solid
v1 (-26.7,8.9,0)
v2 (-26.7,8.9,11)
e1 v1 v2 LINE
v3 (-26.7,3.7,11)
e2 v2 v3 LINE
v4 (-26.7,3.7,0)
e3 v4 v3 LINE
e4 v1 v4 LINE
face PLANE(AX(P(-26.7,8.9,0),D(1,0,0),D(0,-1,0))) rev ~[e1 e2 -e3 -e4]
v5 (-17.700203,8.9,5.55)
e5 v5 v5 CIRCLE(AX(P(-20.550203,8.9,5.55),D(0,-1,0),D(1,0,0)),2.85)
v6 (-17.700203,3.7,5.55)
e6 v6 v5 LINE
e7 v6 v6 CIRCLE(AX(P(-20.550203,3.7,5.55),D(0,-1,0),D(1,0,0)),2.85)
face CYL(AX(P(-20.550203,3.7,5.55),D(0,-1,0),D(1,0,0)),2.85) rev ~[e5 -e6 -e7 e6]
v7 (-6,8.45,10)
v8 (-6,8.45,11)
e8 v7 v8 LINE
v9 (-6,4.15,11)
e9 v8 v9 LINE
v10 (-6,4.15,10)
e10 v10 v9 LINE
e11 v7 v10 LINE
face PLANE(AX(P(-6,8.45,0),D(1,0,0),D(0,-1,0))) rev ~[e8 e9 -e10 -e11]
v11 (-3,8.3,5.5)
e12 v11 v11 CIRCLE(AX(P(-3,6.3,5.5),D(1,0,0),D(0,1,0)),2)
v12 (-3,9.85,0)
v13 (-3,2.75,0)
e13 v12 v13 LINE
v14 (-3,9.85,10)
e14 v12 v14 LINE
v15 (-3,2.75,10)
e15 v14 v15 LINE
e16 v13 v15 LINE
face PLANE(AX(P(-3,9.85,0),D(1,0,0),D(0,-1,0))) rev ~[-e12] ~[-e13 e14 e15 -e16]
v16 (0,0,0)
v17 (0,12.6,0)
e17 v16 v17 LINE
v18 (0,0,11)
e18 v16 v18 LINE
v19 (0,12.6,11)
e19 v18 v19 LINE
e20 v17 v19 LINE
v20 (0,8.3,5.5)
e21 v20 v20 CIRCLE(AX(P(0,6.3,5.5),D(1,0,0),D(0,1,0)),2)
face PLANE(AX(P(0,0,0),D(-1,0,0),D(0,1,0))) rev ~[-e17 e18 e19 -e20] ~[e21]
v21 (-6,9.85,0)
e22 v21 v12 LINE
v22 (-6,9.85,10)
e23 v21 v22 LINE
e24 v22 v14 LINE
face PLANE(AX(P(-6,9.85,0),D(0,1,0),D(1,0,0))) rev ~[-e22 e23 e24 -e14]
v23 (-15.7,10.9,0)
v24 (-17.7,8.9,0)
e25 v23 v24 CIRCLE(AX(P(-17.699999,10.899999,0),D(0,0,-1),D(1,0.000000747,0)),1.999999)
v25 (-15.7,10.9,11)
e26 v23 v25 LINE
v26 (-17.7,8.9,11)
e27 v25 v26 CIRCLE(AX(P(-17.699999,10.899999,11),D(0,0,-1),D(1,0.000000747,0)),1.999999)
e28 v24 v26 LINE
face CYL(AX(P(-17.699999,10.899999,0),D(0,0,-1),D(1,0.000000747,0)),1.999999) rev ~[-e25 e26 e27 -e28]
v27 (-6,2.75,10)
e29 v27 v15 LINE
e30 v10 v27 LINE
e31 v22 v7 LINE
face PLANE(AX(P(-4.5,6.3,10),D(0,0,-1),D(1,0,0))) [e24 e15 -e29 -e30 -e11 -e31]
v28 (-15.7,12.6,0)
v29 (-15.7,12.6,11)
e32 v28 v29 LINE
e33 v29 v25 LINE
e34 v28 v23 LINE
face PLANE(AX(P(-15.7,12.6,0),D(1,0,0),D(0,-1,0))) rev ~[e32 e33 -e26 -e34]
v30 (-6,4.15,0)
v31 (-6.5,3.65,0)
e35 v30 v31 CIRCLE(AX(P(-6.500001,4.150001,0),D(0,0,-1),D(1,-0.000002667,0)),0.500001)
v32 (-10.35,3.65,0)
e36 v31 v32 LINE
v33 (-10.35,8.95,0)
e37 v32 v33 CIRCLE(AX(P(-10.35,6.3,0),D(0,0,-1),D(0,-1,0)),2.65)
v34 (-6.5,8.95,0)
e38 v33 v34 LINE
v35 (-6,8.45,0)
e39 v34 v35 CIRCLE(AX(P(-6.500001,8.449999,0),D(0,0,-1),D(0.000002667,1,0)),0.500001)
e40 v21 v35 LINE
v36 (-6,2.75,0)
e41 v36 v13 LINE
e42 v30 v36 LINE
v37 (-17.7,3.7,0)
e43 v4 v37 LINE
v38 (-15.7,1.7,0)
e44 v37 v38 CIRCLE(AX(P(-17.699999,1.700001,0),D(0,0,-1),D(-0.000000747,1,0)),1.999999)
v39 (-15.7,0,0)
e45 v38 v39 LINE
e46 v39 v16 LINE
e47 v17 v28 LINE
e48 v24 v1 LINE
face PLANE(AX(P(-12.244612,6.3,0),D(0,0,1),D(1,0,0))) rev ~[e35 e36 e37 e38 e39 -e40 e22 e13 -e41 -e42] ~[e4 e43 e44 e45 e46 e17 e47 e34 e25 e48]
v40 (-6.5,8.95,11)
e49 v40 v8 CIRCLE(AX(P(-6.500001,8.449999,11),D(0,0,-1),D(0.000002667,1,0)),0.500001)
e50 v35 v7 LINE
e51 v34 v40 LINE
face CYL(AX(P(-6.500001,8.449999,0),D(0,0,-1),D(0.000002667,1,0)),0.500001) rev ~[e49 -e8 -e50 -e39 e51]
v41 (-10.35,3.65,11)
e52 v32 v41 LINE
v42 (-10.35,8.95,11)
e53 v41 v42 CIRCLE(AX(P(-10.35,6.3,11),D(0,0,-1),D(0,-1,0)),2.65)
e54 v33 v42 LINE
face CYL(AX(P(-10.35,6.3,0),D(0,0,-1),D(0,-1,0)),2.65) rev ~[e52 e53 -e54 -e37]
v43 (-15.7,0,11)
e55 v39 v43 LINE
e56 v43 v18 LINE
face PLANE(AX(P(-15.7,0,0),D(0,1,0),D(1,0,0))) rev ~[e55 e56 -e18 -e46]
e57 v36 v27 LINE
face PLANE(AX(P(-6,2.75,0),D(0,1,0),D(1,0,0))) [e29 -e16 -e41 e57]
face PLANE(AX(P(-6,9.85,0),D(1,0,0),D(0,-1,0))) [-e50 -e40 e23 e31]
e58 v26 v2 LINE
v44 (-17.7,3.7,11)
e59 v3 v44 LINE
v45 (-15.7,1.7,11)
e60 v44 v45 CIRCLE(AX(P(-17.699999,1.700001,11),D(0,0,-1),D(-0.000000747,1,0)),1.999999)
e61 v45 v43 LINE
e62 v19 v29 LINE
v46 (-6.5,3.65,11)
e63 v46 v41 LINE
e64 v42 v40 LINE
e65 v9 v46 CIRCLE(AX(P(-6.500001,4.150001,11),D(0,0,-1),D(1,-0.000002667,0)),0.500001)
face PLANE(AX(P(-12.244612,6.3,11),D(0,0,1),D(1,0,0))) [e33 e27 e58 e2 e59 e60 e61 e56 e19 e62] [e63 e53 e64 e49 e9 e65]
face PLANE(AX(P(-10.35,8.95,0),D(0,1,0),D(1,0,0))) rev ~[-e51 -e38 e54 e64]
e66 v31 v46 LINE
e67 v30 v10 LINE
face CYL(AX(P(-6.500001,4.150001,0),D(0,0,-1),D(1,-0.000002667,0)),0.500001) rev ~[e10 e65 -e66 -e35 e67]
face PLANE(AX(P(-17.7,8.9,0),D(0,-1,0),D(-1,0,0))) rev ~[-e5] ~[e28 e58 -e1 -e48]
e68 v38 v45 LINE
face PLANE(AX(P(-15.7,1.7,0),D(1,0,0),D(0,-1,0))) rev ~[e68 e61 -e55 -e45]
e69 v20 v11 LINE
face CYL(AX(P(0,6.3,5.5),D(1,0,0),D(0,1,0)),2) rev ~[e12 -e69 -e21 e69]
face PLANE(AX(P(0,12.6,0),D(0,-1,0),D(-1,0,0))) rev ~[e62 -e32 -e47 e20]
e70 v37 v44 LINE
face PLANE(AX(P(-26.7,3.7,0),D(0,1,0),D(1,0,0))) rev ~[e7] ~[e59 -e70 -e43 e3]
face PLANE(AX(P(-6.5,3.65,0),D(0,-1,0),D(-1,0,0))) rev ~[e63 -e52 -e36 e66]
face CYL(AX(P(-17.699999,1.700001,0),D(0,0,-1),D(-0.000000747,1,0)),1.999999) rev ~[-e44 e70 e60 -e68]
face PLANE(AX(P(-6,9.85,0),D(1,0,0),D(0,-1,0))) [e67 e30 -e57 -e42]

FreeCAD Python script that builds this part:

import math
import FreeCAD as App
import Part
import Sketcher

doc = App.newDocument("Part")
params = doc.addObject("Spreadsheet::Sheet", "Params")
for row, (alias, value) in enumerate([
    ("sketch1_radius", "1.999999 mm"),
    ("sketch1_radius2", "0.500001 mm"),
    ("sketch1_width", "9 mm"),
    ("sketch1_radius3", "2.65 mm"),
    ("sketch1_width2", "15.7 mm"),
    ("pad1_length", "11 mm"),
    ("sketch2_diameter", "5.7 mm"),
    ("pocket1_length", "25 mm"),
    ("sketch3_width", "3 mm"),
    ("sketch3_height", "7.1 mm"),
    ("pocket2_length", "10 mm"),
    ("sketch4_diameter", "4 mm"),
    ("pocket3_length", "3 mm"),
], start=1):
    params.set(f"A{row}", alias)
    params.set(f"B{row}", "=" + value)
    params.setAlias(f"B{row}", alias)

body = doc.addObject("PartDesign::Body", "Body")

# Sketch on XY plane
sketch1 = body.newObject("Sketcher::SketchObject", "Sketch")
sketch1.AttachmentSupport = (doc.getObject("XY_Plane"), [""])
sketch1.MapMode = "FlatFace"
sketch1.addGeometry([
    Part.LineSegment(App.Vector(-15.7, 1.7, 0), App.Vector(-15.7, 0, 0)),  # 0
    Part.LineSegment(App.Vector(-15.7, 0, 0), App.Vector(0, 0, 0)),  # 1
    Part.LineSegment(App.Vector(0, 0, 0), App.Vector(0, 12.6, 0)),  # 2
    Part.LineSegment(App.Vector(0, 12.6, 0), App.Vector(-15.7, 12.6, 0)),  # 3
    Part.LineSegment(App.Vector(-15.7, 12.6, 0), App.Vector(-15.7, 10.9, 0)),  # 4
    Part.ArcOfCircle(Part.Circle(App.Vector(-17.699999, 10.899999, 0), App.Vector(0, 0, 1), 1.999999), math.radians(-90.000043), math.radians(0.000043)),  # 5
    Part.LineSegment(App.Vector(-17.7, 8.9, 0), App.Vector(-26.7, 8.9, 0)),  # 6
    Part.LineSegment(App.Vector(-26.7, 8.9, 0), App.Vector(-26.7, 3.7, 0)),  # 7
    Part.LineSegment(App.Vector(-26.7, 3.7, 0), App.Vector(-17.7, 3.7, 0)),  # 8
    Part.ArcOfCircle(Part.Circle(App.Vector(-17.699999, 1.700001, 0), App.Vector(0, 0, 1), 1.999999), math.radians(-0.000043), math.radians(90.000043)),  # 9
    Part.LineSegment(App.Vector(-6, 8.45, 0), App.Vector(-6, 4.15, 0)),  # 10
    Part.ArcOfCircle(Part.Circle(App.Vector(-6.500001, 4.150001, 0), App.Vector(0, 0, 1), 0.500001), math.radians(-89.999847), math.radians(-0.000153)),  # 11
    Part.LineSegment(App.Vector(-6.5, 3.65, 0), App.Vector(-10.35, 3.65, 0)),  # 12
    Part.ArcOfCircle(Part.Circle(App.Vector(-10.35, 6.3, 0), App.Vector(0, 0, 1), 2.65), math.radians(90), math.radians(270)),  # 13
    Part.LineSegment(App.Vector(-10.35, 8.95, 0), App.Vector(-6.5, 8.95, 0)),  # 14
    Part.ArcOfCircle(Part.Circle(App.Vector(-6.500001, 8.449999, 0), App.Vector(0, 0, 1), 0.500001), math.radians(0.000153), math.radians(89.999847)),  # 15
], False)
sketch1.addConstraint([
    Sketcher.Constraint("Coincident", 0, 2, 1, 1),
    Sketcher.Constraint("Coincident", 1, 2, 2, 1),
    Sketcher.Constraint("Coincident", 2, 2, 3, 1),
    Sketcher.Constraint("Coincident", 3, 2, 4, 1),
    Sketcher.Constraint("Tangent", 4, 2, 5, 2),
    Sketcher.Constraint("Tangent", 5, 1, 6, 1),
    Sketcher.Constraint("Coincident", 6, 2, 7, 1),
    Sketcher.Constraint("Coincident", 7, 2, 8, 1),
    Sketcher.Constraint("Tangent", 8, 2, 9, 2),
    Sketcher.Constraint("Tangent", 9, 1, 0, 1),
    Sketcher.Constraint("Coincident", 10, 2, 11, 2),
    Sketcher.Constraint("Coincident", 11, 1, 12, 1),
    Sketcher.Constraint("Tangent", 12, 2, 13, 2),
    Sketcher.Constraint("Tangent", 13, 1, 14, 1),
    Sketcher.Constraint("Coincident", 14, 2, 15, 2),
    Sketcher.Constraint("Coincident", 15, 1, 10, 1),
    Sketcher.Constraint("Vertical", 0),
    Sketcher.Constraint("Horizontal", 1),
    Sketcher.Constraint("Vertical", 2),
    Sketcher.Constraint("Horizontal", 3),
    Sketcher.Constraint("Vertical", 4),
    Sketcher.Constraint("Horizontal", 6),
    Sketcher.Constraint("Vertical", 7),
    Sketcher.Constraint("Horizontal", 8),
    Sketcher.Constraint("Vertical", 10),
    Sketcher.Constraint("Horizontal", 12),
    Sketcher.Constraint("Horizontal", 14),
    Sketcher.Constraint("Coincident", 1, 2, -1, 1),
    Sketcher.Constraint("Equal", 5, 9),
    Sketcher.Constraint("Equal", 11, 15),
    Sketcher.Constraint("Horizontal", 11, 3, 10, 2),
    Sketcher.Constraint("Vertical", 5, 3, 9, 3),
    Sketcher.Constraint("Vertical", 15, 3, 11, 1),
    Sketcher.Constraint("Vertical", 11, 1, 14, 2),
    Sketcher.Constraint("Equal", 0, 4),
    Sketcher.Constraint("Radius", 5, 1.999999),
    Sketcher.Constraint("Radius", 11, 0.500001),
    Sketcher.Constraint("DistanceX", 6, 2, 6, 1, 9.0),
    Sketcher.Constraint("Radius", 13, 2.65),
    Sketcher.Constraint("DistanceX", 1, 1, 1, 2, 15.7),
    Sketcher.Constraint("DistanceY", 0, 2, 0, 1, 1.7),
    Sketcher.Constraint("DistanceY", 2, 1, 2, 2, 12.6),
    Sketcher.Constraint("DistanceY", 10, 2, 10, 1, 4.3),
    Sketcher.Constraint("DistanceX", 10, 2, -1, 1, 6.0),
    Sketcher.Constraint("DistanceX", 12, 2, 12, 1, 3.85),
    Sketcher.Constraint("DistanceY", -1, 1, 13, 3, 6.3),
])
sketch1.setExpression("Constraints[35]", "Params.sketch1_radius")
sketch1.setExpression("Constraints[36]", "Params.sketch1_radius2")
sketch1.setExpression("Constraints[37]", "Params.sketch1_width")
sketch1.setExpression("Constraints[38]", "Params.sketch1_radius3")
sketch1.setExpression("Constraints[39]", "Params.sketch1_width2")
pad1 = body.newObject("PartDesign::Pad", "Pad")
pad1.Profile = sketch1
pad1.setExpression("Length", "Params.pad1_length")

# Sketch on XZ plane
sketch2 = body.newObject("Sketcher::SketchObject", "Sketch001")
sketch2.AttachmentSupport = (doc.getObject("XZ_Plane"), [""])
sketch2.MapMode = "FlatFace"
sketch2.AttachmentOffset = App.Placement(App.Vector(0, 0, -3.7), App.Rotation())
sketch2.addGeometry(Part.Circle(App.Vector(-20.550203, 5.55, 0), App.Vector(0, 0, 1), 2.85), False)
sketch2.addConstraint([
    Sketcher.Constraint("Diameter", 0, 5.7),
    Sketcher.Constraint("DistanceY", -1, 1, 0, 3, 5.55),
    Sketcher.Constraint("DistanceX", 0, 3, -1, 1, 20.550203),
])
sketch2.setExpression("Constraints[0]", "Params.sketch2_diameter")
pocket1 = body.newObject("PartDesign::Pocket", "Pocket")
pocket1.Profile = sketch2
pocket1.setExpression("Length", "Params.pocket1_length")

# Sketch on XY plane
sketch3 = body.newObject("Sketcher::SketchObject", "Sketch002")
sketch3.AttachmentSupport = (doc.getObject("XY_Plane"), [""])
sketch3.MapMode = "FlatFace"
sketch3.addGeometry([
    Part.LineSegment(App.Vector(-6, 2.75, 0), App.Vector(-6, 9.85, 0)),
    Part.LineSegment(App.Vector(-6, 9.85, 0), App.Vector(-3, 9.85, 0)),
    Part.LineSegment(App.Vector(-3, 9.85, 0), App.Vector(-3, 2.75, 0)),
    Part.LineSegment(App.Vector(-3, 2.75, 0), App.Vector(-6, 2.75, 0)),
], False)
sketch3.addConstraint([
    Sketcher.Constraint("Coincident", 0, 2, 1, 1),
    Sketcher.Constraint("Coincident", 1, 2, 2, 1),
    Sketcher.Constraint("Coincident", 2, 2, 3, 1),
    Sketcher.Constraint("Coincident", 3, 2, 0, 1),
    Sketcher.Constraint("Vertical", 0),
    Sketcher.Constraint("Horizontal", 1),
    Sketcher.Constraint("Vertical", 2),
    Sketcher.Constraint("Horizontal", 3),
    Sketcher.Constraint("DistanceX", 1, 1, 1, 2, 3.0),
    Sketcher.Constraint("DistanceY", 0, 1, 0, 2, 7.1),
    Sketcher.Constraint("DistanceX", 0, 2, -1, 1, 6.0),
    Sketcher.Constraint("DistanceY", -1, 1, 0, 2, 9.85),
])
sketch3.setExpression("Constraints[8]", "Params.sketch3_width")
sketch3.setExpression("Constraints[9]", "Params.sketch3_height")
pocket2 = body.newObject("PartDesign::Pocket", "Pocket001")
pocket2.Profile = sketch3
pocket2.setExpression("Length", "Params.pocket2_length")
pocket2.Reversed = True

# Sketch on YZ plane
sketch4 = body.newObject("Sketcher::SketchObject", "Sketch003")
sketch4.AttachmentSupport = (doc.getObject("YZ_Plane"), [""])
sketch4.MapMode = "FlatFace"
sketch4.addGeometry(Part.Circle(App.Vector(6.3, 5.5, 0), App.Vector(0, 0, 1), 2), False)
sketch4.addConstraint([
    Sketcher.Constraint("Diameter", 0, 4.0),
    Sketcher.Constraint("DistanceX", -1, 1, 0, 3, 6.3),
    Sketcher.Constraint("DistanceY", -1, 1, 0, 3, 5.5),
])
sketch4.setExpression("Constraints[0]", "Params.sketch4_diameter")
pocket3 = body.newObject("PartDesign::Pocket", "Pocket002")
pocket3.Profile = sketch4
pocket3.setExpression("Length", "Params.pocket3_length")

doc.recompute()
